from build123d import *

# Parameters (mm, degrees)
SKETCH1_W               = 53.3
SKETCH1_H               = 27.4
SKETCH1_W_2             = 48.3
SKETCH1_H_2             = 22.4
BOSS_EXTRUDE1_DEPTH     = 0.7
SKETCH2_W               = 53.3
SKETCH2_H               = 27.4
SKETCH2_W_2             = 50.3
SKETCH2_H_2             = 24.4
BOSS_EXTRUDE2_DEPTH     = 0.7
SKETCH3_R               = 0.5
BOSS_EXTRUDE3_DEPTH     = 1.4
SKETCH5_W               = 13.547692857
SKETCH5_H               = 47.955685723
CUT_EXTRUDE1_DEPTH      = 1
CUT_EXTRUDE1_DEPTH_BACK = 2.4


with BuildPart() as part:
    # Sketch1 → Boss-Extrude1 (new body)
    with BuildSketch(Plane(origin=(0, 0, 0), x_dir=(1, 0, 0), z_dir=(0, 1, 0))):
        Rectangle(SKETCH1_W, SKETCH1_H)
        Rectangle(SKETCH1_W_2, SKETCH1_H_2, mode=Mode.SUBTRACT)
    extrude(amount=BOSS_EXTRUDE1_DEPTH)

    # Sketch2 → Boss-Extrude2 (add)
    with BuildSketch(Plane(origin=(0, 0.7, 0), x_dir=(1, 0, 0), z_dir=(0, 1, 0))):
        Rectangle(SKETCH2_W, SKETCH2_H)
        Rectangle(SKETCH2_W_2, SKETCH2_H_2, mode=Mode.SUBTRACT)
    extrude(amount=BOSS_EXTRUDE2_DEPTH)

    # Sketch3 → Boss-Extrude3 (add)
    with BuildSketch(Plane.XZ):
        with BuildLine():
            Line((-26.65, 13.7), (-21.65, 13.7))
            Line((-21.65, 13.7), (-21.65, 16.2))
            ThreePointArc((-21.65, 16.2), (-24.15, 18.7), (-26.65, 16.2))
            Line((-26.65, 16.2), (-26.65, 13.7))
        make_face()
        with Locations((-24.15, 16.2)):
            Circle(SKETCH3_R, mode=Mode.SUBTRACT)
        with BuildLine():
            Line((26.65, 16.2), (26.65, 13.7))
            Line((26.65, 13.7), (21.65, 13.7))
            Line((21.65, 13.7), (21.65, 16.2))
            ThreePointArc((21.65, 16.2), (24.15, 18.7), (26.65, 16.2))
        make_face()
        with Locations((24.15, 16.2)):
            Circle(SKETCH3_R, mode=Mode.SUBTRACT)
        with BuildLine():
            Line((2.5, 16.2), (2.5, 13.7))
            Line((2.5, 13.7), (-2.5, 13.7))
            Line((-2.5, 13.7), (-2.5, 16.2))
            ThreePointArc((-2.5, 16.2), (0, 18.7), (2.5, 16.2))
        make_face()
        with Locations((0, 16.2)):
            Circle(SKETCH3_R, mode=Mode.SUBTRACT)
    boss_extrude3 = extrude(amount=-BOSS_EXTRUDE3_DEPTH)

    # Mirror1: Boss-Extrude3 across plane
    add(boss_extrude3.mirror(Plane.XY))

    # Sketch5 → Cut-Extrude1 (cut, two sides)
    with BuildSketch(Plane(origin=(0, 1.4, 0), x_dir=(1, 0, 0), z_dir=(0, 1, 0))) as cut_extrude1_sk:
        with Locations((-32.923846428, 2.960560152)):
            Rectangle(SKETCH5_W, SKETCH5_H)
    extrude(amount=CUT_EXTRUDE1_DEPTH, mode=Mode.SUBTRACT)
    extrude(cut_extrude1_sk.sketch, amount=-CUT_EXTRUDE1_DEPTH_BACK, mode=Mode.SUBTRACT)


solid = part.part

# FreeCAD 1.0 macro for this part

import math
import FreeCAD as App
import Part
import Sketcher
from FreeCAD import Vector
Q = App.Units.Quantity

doc = App.newDocument("Part")
params = doc.addObject("Spreadsheet::Sheet", "Params")
for row, (alias, value) in enumerate([
    ("sketch1_width", "53.3 mm"),
    ("sketch1_width2", "48.3 mm"),
    ("sketch1_height", "27.4 mm"),
    ("sketch1_height2", "22.4 mm"),
    ("pad1_length", "0.7 mm"),
    ("sketch2_width", "53.3 mm"),
    ("sketch2_width2", "50.3 mm"),
    ("sketch2_height", "27.4 mm"),
    ("sketch2_height2", "24.4 mm"),
    ("pad2_length", "0.7 mm"),
    ("sketch3_diameter", "1 mm"),
    ("sketch3_radius", "2.5 mm"),
    ("sketch3_height", "2.5 mm"),
    ("pad3_length", "1.4 mm"),
], start=1):
    params.set(f"A{row}", alias)
    params.set(f"B{row}", "=" + value)
    params.setAlias(f"B{row}", alias)

body = doc.addObject("PartDesign::Body", "Body")

# Sketch on XZ plane
sketch1 = body.newObject("Sketcher::SketchObject", "Sketch")
sketch1.AttachmentSupport = (doc.getObject("XZ_Plane"), [""])
sketch1.MapMode = "FlatFace"
sketch1.addGeometry(Part.LineSegment(Vector(-27, -14, 0), Vector(-27, 14, 0)), False)
sketch1.addGeometry(Part.LineSegment(Vector(-27, 14, 0), Vector(27, 14, 0)), False)
sketch1.addGeometry(Part.LineSegment(Vector(27, 14, 0), Vector(27, -14, 0)), False)
sketch1.addGeometry(Part.LineSegment(Vector(27, -14, 0), Vector(-27, -14, 0)), False)
sketch1.addGeometry(Part.LineSegment(Vector(24, 11, 0), Vector(-24, 11, 0)), False)
sketch1.addGeometry(Part.LineSegment(Vector(-24, 11, 0), Vector(-24, -11, 0)), False)
sketch1.addGeometry(Part.LineSegment(Vector(-24, -11, 0), Vector(24, -11, 0)), False)
sketch1.addGeometry(Part.LineSegment(Vector(24, -11, 0), Vector(24, 11, 0)), False)
sketch1.addConstraint(Sketcher.Constraint("Coincident", 0, 2, 1, 1))
sketch1.addConstraint(Sketcher.Constraint("Coincident", 1, 2, 2, 1))
sketch1.addConstraint(Sketcher.Constraint("Coincident", 2, 2, 3, 1))
sketch1.addConstraint(Sketcher.Constraint("Coincident", 3, 2, 0, 1))
sketch1.addConstraint(Sketcher.Constraint("Coincident", 4, 2, 5, 1))
sketch1.addConstraint(Sketcher.Constraint("Coincident", 5, 2, 6, 1))
sketch1.addConstraint(Sketcher.Constraint("Coincident", 6, 2, 7, 1))
sketch1.addConstraint(Sketcher.Constraint("Coincident", 7, 2, 4, 1))
sketch1.addConstraint(Sketcher.Constraint("Vertical", 0))
sketch1.addConstraint(Sketcher.Constraint("Horizontal", 1))
sketch1.addConstraint(Sketcher.Constraint("Vertical", 2))
sketch1.addConstraint(Sketcher.Constraint("Horizontal", 3))
sketch1.addConstraint(Sketcher.Constraint("Horizontal", 4))
sketch1.addConstraint(Sketcher.Constraint("Vertical", 5))
sketch1.addConstraint(Sketcher.Constraint("Horizontal", 6))
sketch1.addConstraint(Sketcher.Constraint("Vertical", 7))
sketch1.addConstraint(Sketcher.Constraint("Symmetric", 0, 2, 2, 2, -1, 1))
sketch1.addConstraint(Sketcher.Constraint("Symmetric", 4, 2, 6, 2, -1, 1))
sketch1.addConstraint(Sketcher.Constraint("DistanceX", 1, 1, 1, 2, Q("53.3 mm")))
sketch1.addConstraint(Sketcher.Constraint("DistanceX", 4, 2, 4, 1, Q("48.3 mm")))
sketch1.addConstraint(Sketcher.Constraint("DistanceY", 0, 1, 0, 2, Q("27.4 mm")))
sketch1.addConstraint(Sketcher.Constraint("DistanceY", 5, 2, 5, 1, Q("22.4 mm")))
sketch1.setExpression("Constraints[18]", "Params.sketch1_width")
sketch1.setExpression("Constraints[19]", "Params.sketch1_width2")
sketch1.setExpression("Constraints[20]", "Params.sketch1_height")
sketch1.setExpression("Constraints[21]", "Params.sketch1_height2")
pad1 = body.newObject("PartDesign::Pad", "Pad")
pad1.Profile = sketch1
pad1.setExpression("Length", "Params.pad1_length")
pad1.Reversed = True

# Sketch on XZ plane
sketch2 = body.newObject("Sketcher::SketchObject", "Sketch001")
sketch2.AttachmentSupport = (doc.getObject("XZ_Plane"), [""])
sketch2.MapMode = "FlatFace"
sketch2.AttachmentOffset = App.Placement(Vector(0, 0, -0.7), App.Rotation())
sketch2.addGeometry(Part.LineSegment(Vector(-27, -14, 0), Vector(-27, 14, 0)), False)
sketch2.addGeometry(Part.LineSegment(Vector(-27, 14, 0), Vector(27, 14, 0)), False)
sketch2.addGeometry(Part.LineSegment(Vector(27, 14, 0), Vector(27, -14, 0)), False)
sketch2.addGeometry(Part.LineSegment(Vector(27, -14, 0), Vector(-27, -14, 0)), False)
sketch2.addGeometry(Part.LineSegment(Vector(25, 12, 0), Vector(-25, 12, 0)), False)
sketch2.addGeometry(Part.LineSegment(Vector(-25, 12, 0), Vector(-25, -12, 0)), False)
sketch2.addGeometry(Part.LineSegment(Vector(-25, -12, 0), Vector(25, -12, 0)), False)
sketch2.addGeometry(Part.LineSegment(Vector(25, -12, 0), Vector(25, 12, 0)), False)
sketch2.addConstraint(Sketcher.Constraint("Coincident", 0, 2, 1, 1))
sketch2.addConstraint(Sketcher.Constraint("Coincident", 1, 2, 2, 1))
sketch2.addConstraint(Sketcher.Constraint("Coincident", 2, 2, 3, 1))
sketch2.addConstraint(Sketcher.Constraint("Coincident", 3, 2, 0, 1))
sketch2.addConstraint(Sketcher.Constraint("Coincident", 4, 2, 5, 1))
sketch2.addConstraint(Sketcher.Constraint("Coincident", 5, 2, 6, 1))
sketch2.addConstraint(Sketcher.Constraint("Coincident", 6, 2, 7, 1))
sketch2.addConstraint(Sketcher.Constraint("Coincident", 7, 2, 4, 1))
sketch2.addConstraint(Sketcher.Constraint("Vertical", 0))
sketch2.addConstraint(Sketcher.Constraint("Horizontal", 1))
sketch2.addConstraint(Sketcher.Constraint("Vertical", 2))
sketch2.addConstraint(Sketcher.Constraint("Horizontal", 3))
sketch2.addConstraint(Sketcher.Constraint("Horizontal", 4))
sketch2.addConstraint(Sketcher.Constraint("Vertical", 5))
sketch2.addConstraint(Sketcher.Constraint("Horizontal", 6))
sketch2.addConstraint(Sketcher.Constraint("Vertical", 7))
sketch2.addConstraint(Sketcher.Constraint("Symmetric", 0, 2, 2, 2, -1, 1))
sketch2.addConstraint(Sketcher.Constraint("Symmetric", 4, 2, 6, 2, -1, 1))
sketch2.addConstraint(Sketcher.Constraint("DistanceX", 1, 1, 1, 2, Q("53.3 mm")))
sketch2.addConstraint(Sketcher.Constraint("DistanceX", 4, 2, 4, 1, Q("50.3 mm")))
sketch2.addConstraint(Sketcher.Constraint("DistanceY", 0, 1, 0, 2, Q("27.4 mm")))
sketch2.addConstraint(Sketcher.Constraint("DistanceY", 5, 2, 5, 1, Q("24.4 mm")))
sketch2.setExpression("Constraints[18]", "Params.sketch2_width")
sketch2.setExpression("Constraints[19]", "Params.sketch2_width2")
sketch2.setExpression("Constraints[20]", "Params.sketch2_height")
sketch2.setExpression("Constraints[21]", "Params.sketch2_height2")
pad2 = body.newObject("PartDesign::Pad", "Pad001")
pad2.Profile = sketch2
pad2.setExpression("Length", "Params.pad2_length")
pad2.Reversed = True

# Sketch on XZ plane
sketch3 = body.newObject("Sketcher::SketchObject", "Sketch002")
sketch3.AttachmentSupport = (doc.getObject("XZ_Plane"), [""])
sketch3.MapMode = "FlatFace"
sketch3.addGeometry(Part.LineSegment(Vector(-26.6, 13.7, 0), Vector(-21.6, 13.7, 0)), False)
sketch3.addGeometry(Part.LineSegment(Vector(-21.6, 13.7, 0), Vector(-21.6, 16.2, 0)), False)
sketch3.addGeometry(Part.ArcOfCircle(Part.Circle(Vector(-24.1, 16.2, 0), Vector(0, 0, 1), 2.5), math.radians(0), math.radians(180)), False)
sketch3.addGeometry(Part.LineSegment(Vector(-26.6, 16.2, 0), Vector(-26.6, 13.7, 0)), False)
sketch3.addGeometry(Part.Circle(Vector(-24.1, 16.2, 0), Vector(0, 0, 1), 0.5), False)
sketch3.addGeometry(Part.LineSegment(Vector(26.6, 13.7, 0), Vector(26.6, 16.2, 0)), False)
sketch3.addGeometry(Part.ArcOfCircle(Part.Circle(Vector(24.1, 16.2, 0), Vector(0, 0, 1), 2.5), math.radians(0), math.radians(180)), False)
sketch3.addGeometry(Part.LineSegment(Vector(21.6, 16.2, 0), Vector(21.6, 13.7, 0)), False)
sketch3.addGeometry(Part.LineSegment(Vector(21.6, 13.7, 0), Vector(26.6, 13.7, 0)), False)
sketch3.addGeometry(Part.Circle(Vector(24.1, 16.2, 0), Vector(0, 0, 1), 0.5), False)
sketch3.addGeometry(Part.LineSegment(Vector(2.5, 13.7, 0), Vector(2.5, 16.2, 0)), False)
sketch3.addGeometry(Part.ArcOfCircle(Part.Circle(Vector(0, 16.2, 0), Vector(0, 0, 1), 2.5), math.radians(0), math.radians(180)), False)
sketch3.addGeometry(Part.LineSegment(Vector(-2.5, 16.2, 0), Vector(-2.5, 13.7, 0)), False)
sketch3.addGeometry(Part.LineSegment(Vector(-2.5, 13.7, 0), Vector(2.5, 13.7, 0)), False)
sketch3.addGeometry(Part.Circle(Vector(0, 16.2, 0), Vector(0, 0, 1), 0.5), False)
sketch3.addConstraint(Sketcher.Constraint("Coincident", 0, 2, 1, 1))
sketch3.addConstraint(Sketcher.Constraint("Tangent", 1, 2, 2, 1))
sketch3.addConstraint(Sketcher.Constraint("Tangent", 2, 2, 3, 1))
sketch3.addConstraint(Sketcher.Constraint("Coincident", 3, 2, 0, 1))
sketch3.addConstraint(Sketcher.Constraint("Tangent", 5, 2, 6, 1))
sketch3.addConstraint(Sketcher.Constraint("Tangent", 6, 2, 7, 1))
sketch3.addConstraint(Sketcher.Constraint("Coincident", 7, 2, 8, 1))
sketch3.addConstraint(Sketcher.Constraint("Coincident", 8, 2, 5, 1))
sketch3.addConstraint(Sketcher.Constraint("Tangent", 10, 2, 11, 1))
sketch3.addConstraint(Sketcher.Constraint("Tangent", 11, 2, 12, 1))
sketch3.addConstraint(Sketcher.Constraint("Coincident", 12, 2, 13, 1))
sketch3.addConstraint(Sketcher.Constraint("Coincident", 13, 2, 10, 1))
sketch3.addConstraint(Sketcher.Constraint("Horizontal", 0))
sketch3.addConstraint(Sketcher.Constraint("Vertical", 1))
sketch3.addConstraint(Sketcher.Constraint("Vertical", 3))
sketch3.addConstraint(Sketcher.Constraint("Vertical", 5))
sketch3.addConstraint(Sketcher.Constraint("Vertical", 7))
sketch3.addConstraint(Sketcher.Constraint("Horizontal", 8))
sketch3.addConstraint(Sketcher.Constraint("Vertical", 10))
sketch3.addConstraint(Sketcher.Constraint("Vertical", 12))
sketch3.addConstraint(Sketcher.Constraint("Horizontal", 13))
sketch3.addConstraint(Sketcher.Constraint("Coincident", 4, 3, 2, 3))
sketch3.addConstraint(Sketcher.Constraint("Coincident", 9, 3, 6, 3))
sketch3.addConstraint(Sketcher.Constraint("Coincident", 14, 3, 11, 3))
sketch3.addConstraint(Sketcher.Constraint("Equal", 2, 6))
sketch3.addConstraint(Sketcher.Constraint("Equal", 4, 9))
sketch3.addConstraint(Sketcher.Constraint("Equal", 6, 11))
sketch3.addConstraint(Sketcher.Constraint("Equal", 9, 14))
sketch3.addConstraint(Sketcher.Constraint("Symmetric", 2, 3, 6, 3, -2))
sketch3.addConstraint(Sketcher.Constraint("PointOnObject", 11, 3, -2))
sketch3.addConstraint(Sketcher.Constraint("Horizontal", 9, 3, 11, 3))
sketch3.addConstraint(Sketcher.Constraint("Horizontal", 3, 2, 7, 2))
sketch3.addConstraint(Sketcher.Constraint("Horizontal", 8, 2, 12, 2))
sketch3.addConstraint(Sketcher.Constraint("Diameter", 4, Q("1 mm")))
sketch3.addConstraint(Sketcher.Constraint("Radius", 2, Q("2.5 mm")))
sketch3.addConstraint(Sketcher.Constraint("DistanceY", 1, 1, 1, 2, Q("2.5 mm")))
sketch3.addConstraint(Sketcher.Constraint("DistanceY", -1, 1, 2, 3, Q("16.2 mm")))
sketch3.addConstraint(Sketcher.Constraint("DistanceX", 2, 3, 6, 3, Q("48.3 mm")))
sketch3.setExpression("Constraints[33]", "Params.sketch3_diameter")
sketch3.setExpression("Constraints[34]", "Params.sketch3_radius")
sketch3.setExpression("Constraints[35]", "Params.sketch3_height")
pad3 = body.newObject("PartDesign::Pad", "Pad002")
pad3.Profile = sketch3
pad3.setExpression("Length", "Params.pad3_length")
pad3.Reversed = True
doc.recompute()

mirrored = body.newObject("PartDesign::Mirrored", "Mirrored")
mirrored.Originals = [pad3]
mirrored.MirrorPlane = (doc.getObject("XY_Plane"), [""])
body.Tip = mirrored

# Sketch on XZ plane
sketch4 = body.newObject("Sketcher::SketchObject", "Sketch003")
sketch4.AttachmentSupport = (doc.getObject("XZ_Plane"), [""])
sketch4.MapMode = "FlatFace"
sketch4.AttachmentOffset = App.Placement(Vector(0, 0, -1.4), App.Rotation())
sketch4.addGeometry(Part.LineSegment(Vector(-40, -27, 0), Vector(-40, 21, 0)), False)
sketch4.addGeometry(Part.LineSegment(Vector(-40, 21, 0), Vector(-26, 21, 0)), False)
sketch4.addGeometry(Part.LineSegment(Vector(-26, 21, 0), Vector(-26, -27, 0)), False)
sketch4.addGeometry(Part.LineSegment(Vector(-26, -27, 0), Vector(-40, -27, 0)), False)
sketch4.addConstraint(Sketcher.Constraint("Coincident", 0, 2, 1, 1))
sketch4.addConstraint(Sketcher.Constraint("Coincident", 1, 2, 2, 1))
sketch4.addConstraint(Sketcher.Constraint("Coincident", 2, 2, 3, 1))
sketch4.addConstraint(Sketcher.Constraint("Coincident", 3, 2, 0, 1))
sketch4.addConstraint(Sketcher.Constraint("Vertical", 0))
sketch4.addConstraint(Sketcher.Constraint("Horizontal", 1))
sketch4.addConstraint(Sketcher.Constraint("Vertical", 2))
sketch4.addConstraint(Sketcher.Constraint("Horizontal", 3))
sketch4.addConstraint(Sketcher.Constraint("DistanceX", 1, 2, -1, 1, Q("26.15 mm")))
sketch4.addConstraint(Sketcher.Constraint("DistanceX", 1, 1, 1, 2, Q("13.547693 mm")))
sketch4.addConstraint(Sketcher.Constraint("DistanceY", 0, 1, 0, 2, Q("47.955686 mm")))
sketch4.addConstraint(Sketcher.Constraint("DistanceY", -1, 1, 0, 2, Q("21.017283 mm")))
pocket1 = body.newObject("PartDesign::Pocket", "Pocket")
pocket1.Profile = sketch4
pocket1.Type = "ThroughAll"
pocket1.Midplane = True

doc.recompute()
